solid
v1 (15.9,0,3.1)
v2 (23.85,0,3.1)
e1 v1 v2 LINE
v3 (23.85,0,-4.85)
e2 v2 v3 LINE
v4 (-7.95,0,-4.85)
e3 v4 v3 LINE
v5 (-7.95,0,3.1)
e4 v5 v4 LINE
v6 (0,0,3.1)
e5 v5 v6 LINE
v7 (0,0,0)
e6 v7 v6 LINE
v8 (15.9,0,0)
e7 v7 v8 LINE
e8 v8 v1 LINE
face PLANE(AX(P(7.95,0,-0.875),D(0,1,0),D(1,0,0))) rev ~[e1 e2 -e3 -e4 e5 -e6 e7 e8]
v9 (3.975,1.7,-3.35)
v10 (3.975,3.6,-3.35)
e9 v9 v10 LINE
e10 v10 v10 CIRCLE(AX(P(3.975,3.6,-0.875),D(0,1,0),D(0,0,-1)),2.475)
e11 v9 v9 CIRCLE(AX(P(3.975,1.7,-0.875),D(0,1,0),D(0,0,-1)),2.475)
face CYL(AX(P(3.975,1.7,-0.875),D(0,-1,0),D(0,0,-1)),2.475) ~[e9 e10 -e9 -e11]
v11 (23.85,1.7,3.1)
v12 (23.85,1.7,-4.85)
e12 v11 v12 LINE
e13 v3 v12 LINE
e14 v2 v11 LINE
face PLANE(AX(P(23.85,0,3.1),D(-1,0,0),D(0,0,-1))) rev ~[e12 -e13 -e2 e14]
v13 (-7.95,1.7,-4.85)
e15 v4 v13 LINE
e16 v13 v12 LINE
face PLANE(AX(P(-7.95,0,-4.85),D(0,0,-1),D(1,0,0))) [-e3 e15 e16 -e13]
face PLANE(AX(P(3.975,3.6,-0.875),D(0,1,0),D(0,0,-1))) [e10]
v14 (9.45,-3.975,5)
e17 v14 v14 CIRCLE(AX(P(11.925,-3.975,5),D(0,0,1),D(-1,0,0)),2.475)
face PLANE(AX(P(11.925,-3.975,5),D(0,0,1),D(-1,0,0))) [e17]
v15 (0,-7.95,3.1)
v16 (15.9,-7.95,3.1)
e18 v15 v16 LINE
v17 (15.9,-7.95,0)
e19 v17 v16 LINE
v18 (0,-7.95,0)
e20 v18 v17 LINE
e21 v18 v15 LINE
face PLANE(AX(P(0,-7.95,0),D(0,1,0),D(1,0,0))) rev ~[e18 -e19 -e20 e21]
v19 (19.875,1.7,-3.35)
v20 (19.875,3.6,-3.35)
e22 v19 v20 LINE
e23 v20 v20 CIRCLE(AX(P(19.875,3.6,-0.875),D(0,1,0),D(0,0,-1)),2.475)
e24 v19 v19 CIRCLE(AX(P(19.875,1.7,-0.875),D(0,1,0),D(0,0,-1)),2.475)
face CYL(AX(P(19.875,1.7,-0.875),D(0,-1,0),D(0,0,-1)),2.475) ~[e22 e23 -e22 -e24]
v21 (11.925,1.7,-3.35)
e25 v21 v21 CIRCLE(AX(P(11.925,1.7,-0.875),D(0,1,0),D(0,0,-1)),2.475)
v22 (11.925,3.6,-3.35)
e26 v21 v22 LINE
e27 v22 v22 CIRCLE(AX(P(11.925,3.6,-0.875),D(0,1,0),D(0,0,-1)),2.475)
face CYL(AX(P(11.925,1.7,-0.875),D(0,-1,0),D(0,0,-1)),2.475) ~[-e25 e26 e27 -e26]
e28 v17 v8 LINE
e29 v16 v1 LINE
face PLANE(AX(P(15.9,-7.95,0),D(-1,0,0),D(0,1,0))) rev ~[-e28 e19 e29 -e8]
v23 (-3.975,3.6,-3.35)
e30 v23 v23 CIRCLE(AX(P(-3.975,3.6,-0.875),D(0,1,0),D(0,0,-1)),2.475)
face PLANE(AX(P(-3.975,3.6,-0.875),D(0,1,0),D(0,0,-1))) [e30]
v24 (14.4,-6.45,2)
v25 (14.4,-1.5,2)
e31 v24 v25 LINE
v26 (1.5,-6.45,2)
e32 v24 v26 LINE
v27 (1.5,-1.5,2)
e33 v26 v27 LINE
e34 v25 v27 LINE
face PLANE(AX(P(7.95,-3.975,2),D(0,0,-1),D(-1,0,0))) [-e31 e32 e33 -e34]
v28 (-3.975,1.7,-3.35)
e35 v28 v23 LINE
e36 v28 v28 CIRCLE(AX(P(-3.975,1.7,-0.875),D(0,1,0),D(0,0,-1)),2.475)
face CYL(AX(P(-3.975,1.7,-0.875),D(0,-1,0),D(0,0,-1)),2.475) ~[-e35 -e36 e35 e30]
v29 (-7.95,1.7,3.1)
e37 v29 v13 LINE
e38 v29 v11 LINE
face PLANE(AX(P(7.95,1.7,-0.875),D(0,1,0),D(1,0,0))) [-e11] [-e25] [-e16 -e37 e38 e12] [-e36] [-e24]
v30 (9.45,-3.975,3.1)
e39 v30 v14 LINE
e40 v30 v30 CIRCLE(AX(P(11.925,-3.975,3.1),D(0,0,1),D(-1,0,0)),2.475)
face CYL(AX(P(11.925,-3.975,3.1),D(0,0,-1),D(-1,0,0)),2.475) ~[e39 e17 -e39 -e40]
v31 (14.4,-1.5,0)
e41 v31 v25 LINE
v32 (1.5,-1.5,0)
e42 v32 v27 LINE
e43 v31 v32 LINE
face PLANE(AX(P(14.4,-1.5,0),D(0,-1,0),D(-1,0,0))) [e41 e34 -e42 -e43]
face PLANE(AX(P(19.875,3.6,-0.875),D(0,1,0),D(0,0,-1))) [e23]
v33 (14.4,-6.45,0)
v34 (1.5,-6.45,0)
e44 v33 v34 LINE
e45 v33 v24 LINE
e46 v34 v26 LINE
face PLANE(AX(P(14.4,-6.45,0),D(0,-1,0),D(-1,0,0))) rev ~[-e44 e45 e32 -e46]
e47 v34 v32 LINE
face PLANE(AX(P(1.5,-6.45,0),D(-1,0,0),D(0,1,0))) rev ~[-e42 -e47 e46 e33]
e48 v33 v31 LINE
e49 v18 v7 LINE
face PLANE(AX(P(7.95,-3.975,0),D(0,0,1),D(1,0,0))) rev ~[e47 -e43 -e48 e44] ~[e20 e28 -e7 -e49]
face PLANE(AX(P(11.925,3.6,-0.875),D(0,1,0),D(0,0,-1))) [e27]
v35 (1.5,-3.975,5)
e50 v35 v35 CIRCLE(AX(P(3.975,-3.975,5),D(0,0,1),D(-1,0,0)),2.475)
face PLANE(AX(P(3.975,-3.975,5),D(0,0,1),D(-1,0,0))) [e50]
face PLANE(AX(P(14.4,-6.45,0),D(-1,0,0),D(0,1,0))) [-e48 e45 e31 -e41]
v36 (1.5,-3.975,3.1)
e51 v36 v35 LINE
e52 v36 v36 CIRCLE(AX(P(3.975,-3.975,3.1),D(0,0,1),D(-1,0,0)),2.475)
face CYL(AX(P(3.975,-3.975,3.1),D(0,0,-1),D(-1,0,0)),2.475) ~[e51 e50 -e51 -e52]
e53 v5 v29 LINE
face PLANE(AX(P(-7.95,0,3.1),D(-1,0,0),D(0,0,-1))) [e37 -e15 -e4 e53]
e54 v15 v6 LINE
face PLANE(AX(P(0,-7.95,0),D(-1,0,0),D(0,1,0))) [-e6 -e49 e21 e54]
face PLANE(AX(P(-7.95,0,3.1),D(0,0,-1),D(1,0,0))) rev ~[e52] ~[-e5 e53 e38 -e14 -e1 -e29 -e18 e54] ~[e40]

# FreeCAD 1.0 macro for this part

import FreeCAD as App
import Part
import Sketcher

V = App.Vector
Q = App.Units.Quantity


def add_polygon(sketch, points):
    """Adds a closed chain of lines whose ends are joined by coincident constraints."""
    first, n = sketch.GeometryCount, len(points)
    for a, b in zip(points, points[1:] + points[:1]):
        sketch.addGeometry(Part.LineSegment(App.Vector(*a, 0), App.Vector(*b, 0)), False)
    for i in range(n):
        sketch.addConstraint(Sketcher.Constraint("Coincident", first + i, 2, first + (i + 1) % n, 1))

doc = App.newDocument("Part")
body = doc.addObject("PartDesign::Body", "Body")

sketch1 = doc.addObject("Sketcher::SketchObject", "Sketch")
body.addObject(sketch1)
sketch1.AttachmentSupport = (doc.XY_Plane, [""])
sketch1.MapMode = "FlatFace"
add_polygon(sketch1, [(0, 0), (0, -8), (16, -8), (16, 0)])
sketch1.addConstraint([
    Sketcher.Constraint("Vertical", 0),
    Sketcher.Constraint("Horizontal", 1),
    Sketcher.Constraint("Vertical", 2),
    Sketcher.Constraint("Horizontal", 3),
    Sketcher.Constraint("Coincident", 3, 2, -1, 1),
    Sketcher.Constraint("DistanceX", 1, 1, 1, 2, Q("15.9 mm")),
    Sketcher.Constraint("DistanceY", 0, 2, 0, 1, Q("7.95 mm")),
])
pad1 = doc.addObject("PartDesign::Pad", "Pad")
body.addObject(pad1)
pad1.Profile = sketch1
pad1.Length = 3.1

sketch2 = doc.addObject("Sketcher::SketchObject", "Sketch001")
body.addObject(sketch2)
sketch2.AttachmentSupport = (doc.XY_Plane, [""])
sketch2.MapMode = "FlatFace"
sketch2.AttachmentOffset = App.Placement(V(0, 0, 3.1), App.Rotation())
sketch2.addGeometry([
    Part.Circle(V(4, -4, 0), V(0, 0, 1), 2.5),
    Part.Circle(V(11.9, -4, 0), V(0, 0, 1), 2.5),
], False)
sketch2.addConstraint([
    Sketcher.Constraint("Equal", 0, 1),
    Sketcher.Constraint("Horizontal", 0, 3, 1, 3),
    Sketcher.Constraint("Diameter", 0, Q("4.95 mm")),
    Sketcher.Constraint("DistanceX", 0, 3, 1, 3, Q("7.95 mm")),
    Sketcher.Constraint("DistanceX", -1, 1, 0, 3, Q("3.975 mm")),
    Sketcher.Constraint("DistanceY", 0, 3, -1, 1, Q("3.975 mm")),
])
pad2 = doc.addObject("PartDesign::Pad", "Pad001")
body.addObject(pad2)
pad2.Profile = sketch2
pad2.Length = 1.9

sketch3 = doc.addObject("Sketcher::SketchObject", "Sketch002")
body.addObject(sketch3)
sketch3.AttachmentSupport = (doc.XY_Plane, [""])
sketch3.MapMode = "FlatFace"
add_polygon(sketch3, [(14.4, -1.5), (14.4, -6.5), (1.5, -6.5), (1.5, -1.5)])
sketch3.addConstraint([
    Sketcher.Constraint("Vertical", 0),
    Sketcher.Constraint("Horizontal", 1),
    Sketcher.Constraint("Vertical", 2),
    Sketcher.Constraint("Horizontal", 3),
    Sketcher.Constraint("DistanceX", 1, 2, 1, 1, Q("12.9 mm")),
    Sketcher.Constraint("DistanceY", 0, 2, 0, 1, Q("4.95 mm")),
    Sketcher.Constraint("DistanceX", -1, 1, 0, 2, Q("14.4 mm")),
    Sketcher.Constraint("DistanceY", 2, 2, -1, 1, Q("1.5 mm")),
])
pocket1 = doc.addObject("PartDesign::Pocket", "Pocket")
body.addObject(pocket1)
pocket1.Profile = sketch3
pocket1.Length = 2
pocket1.Reversed = True

sketch4 = doc.addObject("Sketcher::SketchObject", "Sketch003")
body.addObject(sketch4)
sketch4.AttachmentSupport = (doc.XZ_Plane, [""])
sketch4.MapMode = "FlatFace"
add_polygon(sketch4, [(-8, -5), (-8, 3), (24, 3), (24, -5)])
sketch4.addConstraint([
    Sketcher.Constraint("Vertical", 0),
    Sketcher.Constraint("Horizontal", 1),
    Sketcher.Constraint("Vertical", 2),
    Sketcher.Constraint("Horizontal", 3),
    Sketcher.Constraint("DistanceX", 1, 1, 1, 2, Q("31.8 mm")),
    Sketcher.Constraint("DistanceY", 0, 1, 0, 2, Q("7.95 mm")),
    Sketcher.Constraint("DistanceY", -1, 1, 0, 2, Q("3.1 mm")),
    Sketcher.Constraint("DistanceX", 0, 2, -1, 1, Q("7.95 mm")),
])
pad3 = doc.addObject("PartDesign::Pad", "Pad002")
body.addObject(pad3)
pad3.Profile = sketch4
pad3.Length = 1.7
pad3.Reversed = True

sketch5 = doc.addObject("Sketcher::SketchObject", "Sketch004")
body.addObject(sketch5)
sketch5.AttachmentSupport = (doc.XZ_Plane, [""])
sketch5.MapMode = "FlatFace"
sketch5.AttachmentOffset = App.Placement(V(0, 0, -1.7), App.Rotation())
sketch5.addGeometry(Part.Circle(V(-4, -0.9, 0), V(0, 0, 1), 2.5), False)
sketch5.addConstraint([
    Sketcher.Constraint("Diameter", 0, Q("4.95 mm")),
    Sketcher.Constraint("DistanceX", 0, 3, -1, 1, Q("3.975 mm")),
    Sketcher.Constraint("DistanceY", 0, 3, -1, 1, Q("0.875 mm")),
])
pad4 = doc.addObject("PartDesign::Pad", "Pad003")
body.addObject(pad4)
pad4.Profile = sketch5
pad4.Length = 1.9
pad4.Reversed = True
doc.recompute()

linearpattern = doc.addObject("PartDesign::LinearPattern", "LinearPattern")
body.addObject(linearpattern)
linearpattern.Originals = [pad4]
linearpattern.Direction = (doc.X_Axis, [""])
linearpattern.Mode = "offset"
linearpattern.Offset = 7.95
linearpattern.Occurrences = 4
body.Tip = linearpattern

doc.recompute()
